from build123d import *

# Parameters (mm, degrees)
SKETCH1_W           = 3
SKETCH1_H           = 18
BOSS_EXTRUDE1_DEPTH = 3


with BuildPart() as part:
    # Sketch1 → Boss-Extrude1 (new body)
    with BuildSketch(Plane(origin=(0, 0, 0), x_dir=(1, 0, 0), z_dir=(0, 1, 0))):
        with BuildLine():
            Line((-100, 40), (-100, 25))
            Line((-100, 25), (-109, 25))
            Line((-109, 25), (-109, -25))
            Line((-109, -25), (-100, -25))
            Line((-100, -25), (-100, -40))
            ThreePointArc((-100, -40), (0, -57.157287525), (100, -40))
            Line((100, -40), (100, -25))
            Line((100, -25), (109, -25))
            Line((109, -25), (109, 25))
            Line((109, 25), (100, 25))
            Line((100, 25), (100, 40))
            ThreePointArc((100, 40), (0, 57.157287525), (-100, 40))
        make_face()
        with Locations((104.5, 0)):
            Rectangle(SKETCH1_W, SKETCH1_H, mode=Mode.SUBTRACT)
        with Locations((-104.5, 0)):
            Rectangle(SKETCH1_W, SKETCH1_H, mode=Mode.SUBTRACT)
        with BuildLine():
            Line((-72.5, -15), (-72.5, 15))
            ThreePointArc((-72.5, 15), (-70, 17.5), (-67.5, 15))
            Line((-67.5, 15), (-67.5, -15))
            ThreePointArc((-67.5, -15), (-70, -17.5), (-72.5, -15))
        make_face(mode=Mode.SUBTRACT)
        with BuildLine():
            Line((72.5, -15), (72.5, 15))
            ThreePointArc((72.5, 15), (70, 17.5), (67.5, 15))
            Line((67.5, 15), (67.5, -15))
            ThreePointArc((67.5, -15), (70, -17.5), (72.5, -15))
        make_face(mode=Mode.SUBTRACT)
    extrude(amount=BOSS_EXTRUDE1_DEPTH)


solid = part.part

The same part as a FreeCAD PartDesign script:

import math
import FreeCAD as App
import Part
import Sketcher
Q = App.Units.Quantity


def add_polygon(sketch, points):
    """Adds a closed chain of lines whose ends are joined by coincident constraints."""
    first, n = sketch.GeometryCount, len(points)
    for a, b in zip(points, points[1:] + points[:1]):
        sketch.addGeometry(Part.LineSegment(App.Vector(*a, 0), App.Vector(*b, 0)), False)
    for i in range(n):
        sketch.addConstraint(Sketcher.Constraint("Coincident", first + i, 2, first + (i + 1) % n, 1))

doc = App.newDocument("Part")
body = doc.addObject("PartDesign::Body", "Body")

# Sketch on XZ plane
sketch1 = doc.addObject("Sketcher::SketchObject", "Sketch")
body.addObject(sketch1)
sketch1.AttachmentSupport = (doc.XZ_Plane, [""])
sketch1.MapMode = "FlatFace"
sketch1.addGeometry(Part.LineSegment(App.Vector(-100, -40, 0), App.Vector(-100, -25, 0)), False)  # 0
sketch1.addGeometry(Part.LineSegment(App.Vector(-100, -25, 0), App.Vector(-109, -25, 0)), False)  # 1
sketch1.addGeometry(Part.LineSegment(App.Vector(-109, -25, 0), App.Vector(-109, 25, 0)), False)  # 2
sketch1.addGeometry(Part.LineSegment(App.Vector(-109, 25, 0), App.Vector(-100, 25, 0)), False)  # 3
sketch1.addGeometry(Part.LineSegment(App.Vector(-100, 25, 0), App.Vector(-100, 40, 0)), False)  # 4
sketch1.addGeometry(Part.ArcOfCircle(Part.Circle(App.Vector(0, -242.8, 0), App.Vector(0, 0, 1), 300), math.radians(71), math.radians(109)), False)  # 5
sketch1.addGeometry(Part.LineSegment(App.Vector(100, 40, 0), App.Vector(100, 25, 0)), False)  # 6
sketch1.addGeometry(Part.LineSegment(App.Vector(100, 25, 0), App.Vector(109, 25, 0)), False)  # 7
sketch1.addGeometry(Part.LineSegment(App.Vector(109, 25, 0), App.Vector(109, -25, 0)), False)  # 8
sketch1.addGeometry(Part.LineSegment(App.Vector(109, -25, 0), App.Vector(100, -25, 0)), False)  # 9
sketch1.addGeometry(Part.LineSegment(App.Vector(100, -25, 0), App.Vector(100, -40, 0)), False)  # 10
sketch1.addGeometry(Part.ArcOfCircle(Part.Circle(App.Vector(0, 242.8, 0), App.Vector(0, 0, 1), 300), math.radians(-109), math.radians(-71)), False)  # 11
add_polygon(sketch1, [(-103, 9), (-106, 9), (-106, -9), (-103, -9)])  # lines 12-15
sketch1.addGeometry(Part.ArcOfCircle(Part.Circle(App.Vector(-70, 15, 0), App.Vector(0, 0, 1), 2.5), math.radians(0), math.radians(180)), False)  # 16
sketch1.addGeometry(Part.LineSegment(App.Vector(-72.5, 15, 0), App.Vector(-72.5, -15, 0)), False)  # 17
sketch1.addGeometry(Part.ArcOfCircle(Part.Circle(App.Vector(-70, -15, 0), App.Vector(0, 0, 1), 2.5), math.radians(180), math.radians(360)), False)  # 18
sketch1.addGeometry(Part.LineSegment(App.Vector(-67.5, -15, 0), App.Vector(-67.5, 15, 0)), False)  # 19
sketch1.addGeometry(Part.LineSegment(App.Vector(72.5, -15, 0), App.Vector(72.5, 15, 0)), False)  # 20
sketch1.addGeometry(Part.ArcOfCircle(Part.Circle(App.Vector(70, 15, 0), App.Vector(0, 0, 1), 2.5), math.radians(0), math.radians(180)), False)  # 21
sketch1.addGeometry(Part.LineSegment(App.Vector(67.5, 15, 0), App.Vector(67.5, -15, 0)), False)  # 22
sketch1.addGeometry(Part.ArcOfCircle(Part.Circle(App.Vector(70, -15, 0), App.Vector(0, 0, 1), 2.5), math.radians(180), math.radians(360)), False)  # 23
add_polygon(sketch1, [(106, 9), (103, 9), (103, -9), (106, -9)])  # lines 24-27
sketch1.addConstraint(Sketcher.Constraint("Coincident", 0, 2, 1, 1))
sketch1.addConstraint(Sketcher.Constraint("Coincident", 1, 2, 2, 1))
sketch1.addConstraint(Sketcher.Constraint("Coincident", 2, 2, 3, 1))
sketch1.addConstraint(Sketcher.Constraint("Coincident", 3, 2, 4, 1))
sketch1.addConstraint(Sketcher.Constraint("Coincident", 4, 2, 5, 2))
sketch1.addConstraint(Sketcher.Constraint("Coincident", 5, 1, 6, 1))
sketch1.addConstraint(Sketcher.Constraint("Coincident", 6, 2, 7, 1))
sketch1.addConstraint(Sketcher.Constraint("Coincident", 7, 2, 8, 1))
sketch1.addConstraint(Sketcher.Constraint("Coincident", 8, 2, 9, 1))
sketch1.addConstraint(Sketcher.Constraint("Coincident", 9, 2, 10, 1))
sketch1.addConstraint(Sketcher.Constraint("Coincident", 10, 2, 11, 2))
sketch1.addConstraint(Sketcher.Constraint("Coincident", 11, 1, 0, 1))
sketch1.addConstraint(Sketcher.Constraint("Tangent", 16, 2, 17, 1))
sketch1.addConstraint(Sketcher.Constraint("Tangent", 17, 2, 18, 1))
sketch1.addConstraint(Sketcher.Constraint("Tangent", 18, 2, 19, 1))
sketch1.addConstraint(Sketcher.Constraint("Tangent", 19, 2, 16, 1))
sketch1.addConstraint(Sketcher.Constraint("Tangent", 20, 2, 21, 1))
sketch1.addConstraint(Sketcher.Constraint("Tangent", 21, 2, 22, 1))
sketch1.addConstraint(Sketcher.Constraint("Tangent", 22, 2, 23, 1))
sketch1.addConstraint(Sketcher.Constraint("Tangent", 23, 2, 20, 1))
sketch1.addConstraint(Sketcher.Constraint("Vertical", 0))
sketch1.addConstraint(Sketcher.Constraint("Horizontal", 1))
sketch1.addConstraint(Sketcher.Constraint("Vertical", 2))
sketch1.addConstraint(Sketcher.Constraint("Horizontal", 3))
sketch1.addConstraint(Sketcher.Constraint("Vertical", 4))
sketch1.addConstraint(Sketcher.Constraint("Vertical", 6))
sketch1.addConstraint(Sketcher.Constraint("Horizontal", 7))
sketch1.addConstraint(Sketcher.Constraint("Vertical", 8))
sketch1.addConstraint(Sketcher.Constraint("Horizontal", 9))
sketch1.addConstraint(Sketcher.Constraint("Vertical", 10))
sketch1.addConstraint(Sketcher.Constraint("Horizontal", 12))
sketch1.addConstraint(Sketcher.Constraint("Vertical", 13))
sketch1.addConstraint(Sketcher.Constraint("Horizontal", 14))
sketch1.addConstraint(Sketcher.Constraint("Vertical", 15))
sketch1.addConstraint(Sketcher.Constraint("Vertical", 17))
sketch1.addConstraint(Sketcher.Constraint("Vertical", 19))
sketch1.addConstraint(Sketcher.Constraint("Vertical", 20))
sketch1.addConstraint(Sketcher.Constraint("Vertical", 22))
sketch1.addConstraint(Sketcher.Constraint("Horizontal", 24))
sketch1.addConstraint(Sketcher.Constraint("Vertical", 25))
sketch1.addConstraint(Sketcher.Constraint("Horizontal", 26))
sketch1.addConstraint(Sketcher.Constraint("Vertical", 27))
sketch1.addConstraint(Sketcher.Constraint("Equal", 5, 11))
sketch1.addConstraint(Sketcher.Constraint("Equal", 18, 21))
sketch1.addConstraint(Sketcher.Constraint("Symmetric", 5, 3, 11, 3, -1, 1))
sketch1.addConstraint(Sketcher.Constraint("Symmetric", 18, 3, 21, 3, -1, 1))
sketch1.addConstraint(Sketcher.Constraint("Symmetric", 0, 2, 6, 2, -1, 1))
sketch1.addConstraint(Sketcher.Constraint("Symmetric", 2, 2, 8, 2, -1, 1))
sketch1.addConstraint(Sketcher.Constraint("Symmetric", 14, 2, 24, 2, -1, 1))
sketch1.addConstraint(Sketcher.Constraint("Symmetric", 12, 2, 26, 2, -1, 1))
sketch1.addConstraint(Sketcher.Constraint("Symmetric", 4, 2, 5, 1, -2))
sketch1.addConstraint(Sketcher.Constraint("Symmetric", 0, 2, 9, 2, -2))
sketch1.addConstraint(Sketcher.Constraint("Horizontal", 16, 3, 21, 3))
sketch1.addConstraint(Sketcher.Constraint("Horizontal", 18, 3, 23, 3))
sketch1.addConstraint(Sketcher.Constraint("Horizontal", 15, 2, 24, 2))
sketch1.addConstraint(Sketcher.Constraint("Radius", 5, Q("300 mm")))
sketch1.addConstraint(Sketcher.Constraint("Radius", 16, Q("2.5 mm")))
sketch1.addConstraint(Sketcher.Constraint("DistanceX", 1, 2, 1, 1, Q("9 mm")))
sketch1.addConstraint(Sketcher.Constraint("DistanceX", 12, 2, 12, 1, Q("3 mm")))
sketch1.addConstraint(Sketcher.Constraint("DistanceY", 0, 1, 0, 2, Q("15 mm")))
sketch1.addConstraint(Sketcher.Constraint("DistanceY", 2, 1, 2, 2, Q("50 mm")))
sketch1.addConstraint(Sketcher.Constraint("DistanceY", 13, 2, 13, 1, Q("18 mm")))
sketch1.addConstraint(Sketcher.Constraint("DistanceY", 17, 2, 17, 1, Q("30 mm")))
sketch1.addConstraint(Sketcher.Constraint("DistanceX", 16, 3, -1, 1, Q("70 mm")))
sketch1.addConstraint(Sketcher.Constraint("DistanceX", 0, 2, -1, 1, Q("100 mm")))
sketch1.addConstraint(Sketcher.Constraint("DistanceX", 12, 2, -1, 1, Q("106 mm")))
pad1 = doc.addObject("PartDesign::Pad", "Pad")
body.addObject(pad1)
pad1.Profile = sketch1
pad1.Length = 3
pad1.Reversed = True

doc.recompute()
